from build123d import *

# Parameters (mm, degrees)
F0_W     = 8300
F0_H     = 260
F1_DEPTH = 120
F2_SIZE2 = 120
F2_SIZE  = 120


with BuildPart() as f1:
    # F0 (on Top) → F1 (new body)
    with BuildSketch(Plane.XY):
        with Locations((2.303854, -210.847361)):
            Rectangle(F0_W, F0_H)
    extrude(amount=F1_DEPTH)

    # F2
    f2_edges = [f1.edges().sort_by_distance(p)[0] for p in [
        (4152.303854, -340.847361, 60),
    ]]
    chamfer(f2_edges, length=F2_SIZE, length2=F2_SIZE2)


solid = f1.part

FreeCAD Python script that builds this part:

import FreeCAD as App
import Part
import Sketcher
from FreeCAD import Vector
Q = App.Units.Quantity


def edges_at(feature, points):
    """Names of the edges that pass closest to the given points."""
    edges = feature.Shape.Edges
    near = lambda p: min(range(len(edges)), key=lambda i: edges[i].distToShape(Part.Vertex(*p))[0])
    return sorted({f"Edge{near(p) + 1}" for p in points})


def add_polygon(sketch, points):
    """Adds a closed chain of lines whose ends are joined by coincident constraints."""
    first, n = sketch.GeometryCount, len(points)
    for a, b in zip(points, points[1:] + points[:1]):
        sketch.addGeometry(Part.LineSegment(App.Vector(*a, 0), App.Vector(*b, 0)), False)
    for i in range(n):
        sketch.addConstraint(Sketcher.Constraint("Coincident", first + i, 2, first + (i + 1) % n, 1))

doc = App.newDocument("Part")
body = doc.addObject("PartDesign::Body", "Body")

sketch1 = body.newObject("Sketcher::SketchObject", "Sketch")
sketch1.AttachmentSupport = (doc.getObject("XY_Plane"), [""])
sketch1.MapMode = "FlatFace"
add_polygon(sketch1, [(-4148, -81), (-4148, -341), (4152, -341), (4152, -81)])
sketch1.addConstraint([
    Sketcher.Constraint("Vertical", 0),
    Sketcher.Constraint("Horizontal", 1),
    Sketcher.Constraint("Vertical", 2),
    Sketcher.Constraint("Horizontal", 3),
    Sketcher.Constraint("DistanceX", 1, 1, 1, 2, Q("8300 mm")),
    Sketcher.Constraint("DistanceY", 0, 2, 0, 1, Q("260 mm")),
    Sketcher.Constraint("DistanceY", 0, 2, -1, 1, Q("340.847361 mm")),
    Sketcher.Constraint("DistanceX", 0, 2, -1, 1, Q("4147.696146 mm")),
])
pad1 = body.newObject("PartDesign::Pad", "Pad")
pad1.Profile = sketch1
pad1.Length = 120
doc.recompute()

chamfer = body.newObject("PartDesign::Chamfer", "Chamfer")
chamfer.Base = (pad1, edges_at(pad1, [(4152.304, -340.847, 60)]))
chamfer.ChamferType = "Two distances"
chamfer.Size = 120
chamfer.Size2 = 120

doc.recompute()
